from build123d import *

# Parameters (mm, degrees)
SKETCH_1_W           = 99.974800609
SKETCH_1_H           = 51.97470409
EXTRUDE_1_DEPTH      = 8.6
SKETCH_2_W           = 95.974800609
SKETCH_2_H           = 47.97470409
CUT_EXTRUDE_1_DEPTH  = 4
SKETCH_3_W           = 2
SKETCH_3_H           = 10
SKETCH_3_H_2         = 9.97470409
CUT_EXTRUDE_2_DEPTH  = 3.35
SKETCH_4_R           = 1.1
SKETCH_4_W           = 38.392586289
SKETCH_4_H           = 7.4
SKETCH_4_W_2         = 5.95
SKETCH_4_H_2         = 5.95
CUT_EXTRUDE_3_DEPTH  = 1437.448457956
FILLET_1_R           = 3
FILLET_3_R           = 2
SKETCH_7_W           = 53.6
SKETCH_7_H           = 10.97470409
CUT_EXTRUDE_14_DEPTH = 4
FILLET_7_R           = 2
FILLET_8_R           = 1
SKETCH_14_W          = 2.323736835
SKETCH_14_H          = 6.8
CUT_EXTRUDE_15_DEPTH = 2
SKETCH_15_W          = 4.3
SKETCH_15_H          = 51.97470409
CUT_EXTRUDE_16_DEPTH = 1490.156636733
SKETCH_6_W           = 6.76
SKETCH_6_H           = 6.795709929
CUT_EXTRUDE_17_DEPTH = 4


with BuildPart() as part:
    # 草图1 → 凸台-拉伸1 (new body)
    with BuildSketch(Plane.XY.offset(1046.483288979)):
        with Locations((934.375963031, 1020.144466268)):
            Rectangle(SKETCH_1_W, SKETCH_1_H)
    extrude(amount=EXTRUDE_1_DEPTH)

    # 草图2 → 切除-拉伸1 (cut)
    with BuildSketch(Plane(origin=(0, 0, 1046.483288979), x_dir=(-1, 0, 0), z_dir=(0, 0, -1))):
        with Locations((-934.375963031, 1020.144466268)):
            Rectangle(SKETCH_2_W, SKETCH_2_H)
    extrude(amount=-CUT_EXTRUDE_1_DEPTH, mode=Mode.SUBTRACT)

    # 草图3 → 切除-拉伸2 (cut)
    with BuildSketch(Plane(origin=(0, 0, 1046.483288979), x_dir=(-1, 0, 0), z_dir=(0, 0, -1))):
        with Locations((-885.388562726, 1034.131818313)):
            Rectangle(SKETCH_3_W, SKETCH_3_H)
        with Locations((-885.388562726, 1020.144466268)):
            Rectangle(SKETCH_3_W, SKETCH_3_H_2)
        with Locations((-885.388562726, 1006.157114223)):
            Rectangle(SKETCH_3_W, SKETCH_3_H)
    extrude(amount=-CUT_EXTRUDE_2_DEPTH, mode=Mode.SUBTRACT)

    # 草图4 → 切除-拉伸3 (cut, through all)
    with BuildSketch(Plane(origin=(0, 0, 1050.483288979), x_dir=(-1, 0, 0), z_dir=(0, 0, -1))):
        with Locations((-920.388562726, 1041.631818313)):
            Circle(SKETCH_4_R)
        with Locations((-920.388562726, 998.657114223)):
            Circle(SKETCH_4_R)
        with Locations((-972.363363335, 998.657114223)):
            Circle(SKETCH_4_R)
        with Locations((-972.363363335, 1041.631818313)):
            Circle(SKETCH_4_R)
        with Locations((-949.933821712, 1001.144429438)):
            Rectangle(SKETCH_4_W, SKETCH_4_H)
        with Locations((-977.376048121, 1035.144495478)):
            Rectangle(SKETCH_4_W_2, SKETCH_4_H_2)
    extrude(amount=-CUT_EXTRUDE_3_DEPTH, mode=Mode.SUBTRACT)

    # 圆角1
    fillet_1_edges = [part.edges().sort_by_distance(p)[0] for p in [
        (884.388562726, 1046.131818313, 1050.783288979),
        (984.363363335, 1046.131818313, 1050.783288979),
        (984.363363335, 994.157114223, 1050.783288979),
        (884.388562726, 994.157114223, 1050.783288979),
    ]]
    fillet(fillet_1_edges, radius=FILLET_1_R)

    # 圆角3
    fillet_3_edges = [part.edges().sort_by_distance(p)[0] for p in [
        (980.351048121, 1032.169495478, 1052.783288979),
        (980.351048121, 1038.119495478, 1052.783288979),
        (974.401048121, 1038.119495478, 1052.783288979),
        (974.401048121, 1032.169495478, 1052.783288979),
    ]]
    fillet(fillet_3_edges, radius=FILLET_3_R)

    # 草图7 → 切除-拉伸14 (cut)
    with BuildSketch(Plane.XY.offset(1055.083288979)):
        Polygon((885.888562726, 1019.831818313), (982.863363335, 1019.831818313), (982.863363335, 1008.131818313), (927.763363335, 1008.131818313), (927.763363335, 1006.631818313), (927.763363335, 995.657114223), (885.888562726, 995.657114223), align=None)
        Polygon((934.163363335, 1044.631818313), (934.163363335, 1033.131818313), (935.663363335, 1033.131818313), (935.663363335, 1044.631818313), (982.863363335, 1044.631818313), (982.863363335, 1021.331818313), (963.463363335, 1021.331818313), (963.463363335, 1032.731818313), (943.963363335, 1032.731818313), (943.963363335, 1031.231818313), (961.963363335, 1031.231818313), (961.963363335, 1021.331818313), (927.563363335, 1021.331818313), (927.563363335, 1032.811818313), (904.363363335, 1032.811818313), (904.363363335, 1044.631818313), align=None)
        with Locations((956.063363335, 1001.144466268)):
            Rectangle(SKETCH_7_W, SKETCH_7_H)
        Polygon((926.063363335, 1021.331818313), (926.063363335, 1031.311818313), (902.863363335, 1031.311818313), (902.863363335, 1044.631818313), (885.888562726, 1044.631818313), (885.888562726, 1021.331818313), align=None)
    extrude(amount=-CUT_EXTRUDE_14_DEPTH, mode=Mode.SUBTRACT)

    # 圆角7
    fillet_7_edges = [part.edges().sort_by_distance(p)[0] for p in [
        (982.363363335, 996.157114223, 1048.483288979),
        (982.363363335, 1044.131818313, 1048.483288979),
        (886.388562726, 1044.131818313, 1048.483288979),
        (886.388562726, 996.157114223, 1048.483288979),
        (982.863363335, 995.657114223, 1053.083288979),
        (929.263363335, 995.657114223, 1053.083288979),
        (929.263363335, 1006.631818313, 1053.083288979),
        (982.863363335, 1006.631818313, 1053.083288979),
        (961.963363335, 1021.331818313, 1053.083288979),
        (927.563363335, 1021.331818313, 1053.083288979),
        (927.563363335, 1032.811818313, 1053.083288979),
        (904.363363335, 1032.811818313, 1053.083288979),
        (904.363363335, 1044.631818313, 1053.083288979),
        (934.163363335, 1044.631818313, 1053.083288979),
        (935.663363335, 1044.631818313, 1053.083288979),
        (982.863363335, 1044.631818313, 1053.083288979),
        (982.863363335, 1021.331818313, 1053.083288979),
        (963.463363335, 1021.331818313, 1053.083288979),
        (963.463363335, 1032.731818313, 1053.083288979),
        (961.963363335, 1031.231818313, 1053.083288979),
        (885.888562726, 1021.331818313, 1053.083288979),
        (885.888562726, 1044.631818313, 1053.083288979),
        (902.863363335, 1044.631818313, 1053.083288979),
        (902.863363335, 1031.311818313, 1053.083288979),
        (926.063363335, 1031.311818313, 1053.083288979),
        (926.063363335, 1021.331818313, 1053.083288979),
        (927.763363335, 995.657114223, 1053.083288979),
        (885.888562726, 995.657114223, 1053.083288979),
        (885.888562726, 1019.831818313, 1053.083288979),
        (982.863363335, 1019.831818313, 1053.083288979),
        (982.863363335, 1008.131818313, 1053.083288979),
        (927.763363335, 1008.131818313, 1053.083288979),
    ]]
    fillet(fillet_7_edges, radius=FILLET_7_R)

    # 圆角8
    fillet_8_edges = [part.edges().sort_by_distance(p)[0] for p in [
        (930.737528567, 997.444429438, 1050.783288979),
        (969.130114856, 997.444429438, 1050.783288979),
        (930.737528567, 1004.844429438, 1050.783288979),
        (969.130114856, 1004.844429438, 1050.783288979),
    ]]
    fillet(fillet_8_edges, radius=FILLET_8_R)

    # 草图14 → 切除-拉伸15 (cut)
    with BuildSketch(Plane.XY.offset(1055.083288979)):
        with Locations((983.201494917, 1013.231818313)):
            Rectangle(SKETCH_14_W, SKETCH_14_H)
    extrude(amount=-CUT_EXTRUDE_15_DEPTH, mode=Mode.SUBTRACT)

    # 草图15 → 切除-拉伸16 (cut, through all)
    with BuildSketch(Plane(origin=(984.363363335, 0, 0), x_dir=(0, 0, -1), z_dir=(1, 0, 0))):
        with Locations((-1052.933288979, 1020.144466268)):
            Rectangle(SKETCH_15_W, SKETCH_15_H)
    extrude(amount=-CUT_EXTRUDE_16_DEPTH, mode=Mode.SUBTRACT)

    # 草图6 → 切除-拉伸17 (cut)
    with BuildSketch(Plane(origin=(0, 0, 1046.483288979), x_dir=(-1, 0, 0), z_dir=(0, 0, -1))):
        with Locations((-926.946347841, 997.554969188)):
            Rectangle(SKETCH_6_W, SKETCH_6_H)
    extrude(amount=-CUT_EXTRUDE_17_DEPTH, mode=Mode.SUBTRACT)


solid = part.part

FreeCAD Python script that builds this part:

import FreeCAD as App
import Part
import Sketcher
from FreeCAD import Vector
Q = App.Units.Quantity


def edges_at(feature, points):
    """Names of the edges that pass closest to the given points."""
    edges = feature.Shape.Edges
    near = lambda p: min(range(len(edges)), key=lambda i: edges[i].distToShape(Part.Vertex(*p))[0])
    return sorted({f"Edge{near(p) + 1}" for p in points})

doc = App.newDocument("Part")
body = doc.addObject("PartDesign::Body", "Body")

sketch1 = body.newObject("Sketcher::SketchObject", "Sketch")
sketch1.AttachmentSupport = (doc.getObject("XY_Plane"), [""])
sketch1.MapMode = "FlatFace"
sketch1.AttachmentOffset = App.Placement(Vector(0, 0, 1046.483289), App.Rotation())
sketch1.addGeometry(Part.LineSegment(Vector(884, 1046, 0), Vector(884, 994, 0)), False)
sketch1.addGeometry(Part.LineSegment(Vector(884, 994, 0), Vector(984, 994, 0)), False)
sketch1.addGeometry(Part.LineSegment(Vector(984, 994, 0), Vector(984, 1046, 0)), False)
sketch1.addGeometry(Part.LineSegment(Vector(984, 1046, 0), Vector(884, 1046, 0)), False)
sketch1.addConstraint(Sketcher.Constraint("Coincident", 0, 2, 1, 1))
sketch1.addConstraint(Sketcher.Constraint("Coincident", 1, 2, 2, 1))
sketch1.addConstraint(Sketcher.Constraint("Coincident", 2, 2, 3, 1))
sketch1.addConstraint(Sketcher.Constraint("Coincident", 3, 2, 0, 1))
sketch1.addConstraint(Sketcher.Constraint("Vertical", 0))
sketch1.addConstraint(Sketcher.Constraint("Horizontal", 1))
sketch1.addConstraint(Sketcher.Constraint("Vertical", 2))
sketch1.addConstraint(Sketcher.Constraint("Horizontal", 3))
sketch1.addConstraint(Sketcher.Constraint("DistanceX", 1, 1, 1, 2, Q("99.974801 mm")))
sketch1.addConstraint(Sketcher.Constraint("DistanceY", 0, 2, 0, 1, Q("51.974704 mm")))
sketch1.addConstraint(Sketcher.Constraint("DistanceY", -1, 1, 2, 2, Q("1046.131818 mm")))
sketch1.addConstraint(Sketcher.Constraint("DistanceX", -1, 1, 0, 2, Q("884.388563 mm")))
pad1 = body.newObject("PartDesign::Pad", "Pad")
pad1.Profile = sketch1
pad1.Length = 8.6

sketch2 = body.newObject("Sketcher::SketchObject", "Sketch001")
sketch2.AttachmentSupport = (doc.getObject("XY_Plane"), [""])
sketch2.MapMode = "FlatFace"
sketch2.AttachmentOffset = App.Placement(Vector(0, 0, 1046.483289), App.Rotation())
sketch2.addGeometry(Part.LineSegment(Vector(982, 1044, 0), Vector(982, 996, 0)), False)
sketch2.addGeometry(Part.LineSegment(Vector(982, 996, 0), Vector(886, 996, 0)), False)
sketch2.addGeometry(Part.LineSegment(Vector(886, 996, 0), Vector(886, 1044, 0)), False)
sketch2.addGeometry(Part.LineSegment(Vector(886, 1044, 0), Vector(982, 1044, 0)), False)
sketch2.addConstraint(Sketcher.Constraint("Coincident", 0, 2, 1, 1))
sketch2.addConstraint(Sketcher.Constraint("Coincident", 1, 2, 2, 1))
sketch2.addConstraint(Sketcher.Constraint("Coincident", 2, 2, 3, 1))
sketch2.addConstraint(Sketcher.Constraint("Coincident", 3, 2, 0, 1))
sketch2.addConstraint(Sketcher.Constraint("Vertical", 0))
sketch2.addConstraint(Sketcher.Constraint("Horizontal", 1))
sketch2.addConstraint(Sketcher.Constraint("Vertical", 2))
sketch2.addConstraint(Sketcher.Constraint("Horizontal", 3))
sketch2.addConstraint(Sketcher.Constraint("DistanceX", 1, 2, 1, 1, Q("95.974801 mm")))
sketch2.addConstraint(Sketcher.Constraint("DistanceY", 0, 2, 0, 1, Q("47.974704 mm")))
sketch2.addConstraint(Sketcher.Constraint("DistanceY", -1, 1, 2, 2, Q("1044.131818 mm")))
sketch2.addConstraint(Sketcher.Constraint("DistanceX", -1, 1, 0, 2, Q("982.363363 mm")))
pocket1 = body.newObject("PartDesign::Pocket", "Pocket")
pocket1.Profile = sketch2
pocket1.Length = 4
pocket1.Reversed = True

sketch3 = body.newObject("Sketcher::SketchObject", "Sketch002")
sketch3.AttachmentSupport = (doc.getObject("XY_Plane"), [""])
sketch3.MapMode = "FlatFace"
sketch3.AttachmentOffset = App.Placement(Vector(0, 0, 1046.483289), App.Rotation())
sketch3.addGeometry(Part.LineSegment(Vector(886.4, 1039.1, 0), Vector(886.4, 1029.1, 0)), False)
sketch3.addGeometry(Part.LineSegment(Vector(886.4, 1029.1, 0), Vector(884.4, 1029.1, 0)), False)
sketch3.addGeometry(Part.LineSegment(Vector(884.4, 1029.1, 0), Vector(884.4, 1039.1, 0)), False)
sketch3.addGeometry(Part.LineSegment(Vector(884.4, 1039.1, 0), Vector(886.4, 1039.1, 0)), False)
sketch3.addGeometry(Part.LineSegment(Vector(886.4, 1025.1, 0), Vector(886.4, 1015.2, 0)), False)
sketch3.addGeometry(Part.LineSegment(Vector(886.4, 1015.2, 0), Vector(884.4, 1015.2, 0)), False)
sketch3.addGeometry(Part.LineSegment(Vector(884.4, 1015.2, 0), Vector(884.4, 1025.1, 0)), False)
sketch3.addGeometry(Part.LineSegment(Vector(884.4, 1025.1, 0), Vector(886.4, 1025.1, 0)), False)
sketch3.addGeometry(Part.LineSegment(Vector(886.4, 1011.2, 0), Vector(886.4, 1001.2, 0)), False)
sketch3.addGeometry(Part.LineSegment(Vector(886.4, 1001.2, 0), Vector(884.4, 1001.2, 0)), False)
sketch3.addGeometry(Part.LineSegment(Vector(884.4, 1001.2, 0), Vector(884.4, 1011.2, 0)), False)
sketch3.addGeometry(Part.LineSegment(Vector(884.4, 1011.2, 0), Vector(886.4, 1011.2, 0)), False)
sketch3.addConstraint(Sketcher.Constraint("Coincident", 0, 2, 1, 1))
sketch3.addConstraint(Sketcher.Constraint("Coincident", 1, 2, 2, 1))
sketch3.addConstraint(Sketcher.Constraint("Coincident", 2, 2, 3, 1))
sketch3.addConstraint(Sketcher.Constraint("Coincident", 3, 2, 0, 1))
sketch3.addConstraint(Sketcher.Constraint("Coincident", 4, 2, 5, 1))
sketch3.addConstraint(Sketcher.Constraint("Coincident", 5, 2, 6, 1))
sketch3.addConstraint(Sketcher.Constraint("Coincident", 6, 2, 7, 1))
sketch3.addConstraint(Sketcher.Constraint("Coincident", 7, 2, 4, 1))
sketch3.addConstraint(Sketcher.Constraint("Coincident", 8, 2, 9, 1))
sketch3.addConstraint(Sketcher.Constraint("Coincident", 9, 2, 10, 1))
sketch3.addConstraint(Sketcher.Constraint("Coincident", 10, 2, 11, 1))
sketch3.addConstraint(Sketcher.Constraint("Coincident", 11, 2, 8, 1))
sketch3.addConstraint(Sketcher.Constraint("Vertical", 0))
sketch3.addConstraint(Sketcher.Constraint("Horizontal", 1))
sketch3.addConstraint(Sketcher.Constraint("Vertical", 2))
sketch3.addConstraint(Sketcher.Constraint("Horizontal", 3))
sketch3.addConstraint(Sketcher.Constraint("Vertical", 4))
sketch3.addConstraint(Sketcher.Constraint("Horizontal", 5))
sketch3.addConstraint(Sketcher.Constraint("Vertical", 6))
sketch3.addConstraint(Sketcher.Constraint("Horizontal", 7))
sketch3.addConstraint(Sketcher.Constraint("Vertical", 8))
sketch3.addConstraint(Sketcher.Constraint("Horizontal", 9))
sketch3.addConstraint(Sketcher.Constraint("Vertical", 10))
sketch3.addConstraint(Sketcher.Constraint("Horizontal", 11))
sketch3.addConstraint(Sketcher.Constraint("Vertical", 3, 2, 4, 2))
sketch3.addConstraint(Sketcher.Constraint("Vertical", 2, 2, 5, 2))
sketch3.addConstraint(Sketcher.Constraint("Vertical", 7, 2, 8, 2))
sketch3.addConstraint(Sketcher.Constraint("Vertical", 6, 2, 9, 2))
sketch3.addConstraint(Sketcher.Constraint("Equal", 2, 8))
sketch3.addConstraint(Sketcher.Constraint("DistanceX", 1, 2, 1, 1, Q("2 mm")))
sketch3.addConstraint(Sketcher.Constraint("DistanceY", 0, 2, 0, 1, Q("10 mm")))
sketch3.addConstraint(Sketcher.Constraint("DistanceY", 6, 2, 1, 2, Q("4 mm")))
sketch3.addConstraint(Sketcher.Constraint("DistanceY", 8, 2, 4, 2, Q("14 mm")))
sketch3.addConstraint(Sketcher.Constraint("DistanceY", 4, 2, 4, 1, Q("9.974704 mm")))
sketch3.addConstraint(Sketcher.Constraint("DistanceY", -1, 1, 0, 2, Q("1029.131818 mm")))
sketch3.addConstraint(Sketcher.Constraint("DistanceX", -1, 1, 0, 2, Q("886.388563 mm")))
pocket2 = body.newObject("PartDesign::Pocket", "Pocket001")
pocket2.Profile = sketch3
pocket2.Length = 3.35
pocket2.Reversed = True

sketch4 = body.newObject("Sketcher::SketchObject", "Sketch003")
sketch4.AttachmentSupport = (doc.getObject("XY_Plane"), [""])
sketch4.MapMode = "FlatFace"
sketch4.AttachmentOffset = App.Placement(Vector(0, 0, 1050.483289), App.Rotation())
sketch4.addGeometry(Part.Circle(Vector(920.4, 1041.6, 0), Vector(0, 0, 1), 1.1), False)
sketch4.addGeometry(Part.Circle(Vector(920.4, 998.7, 0), Vector(0, 0, 1), 1.1), False)
sketch4.addGeometry(Part.Circle(Vector(972.4, 998.7, 0), Vector(0, 0, 1), 1.1), False)
sketch4.addGeometry(Part.Circle(Vector(972.4, 1041.6, 0), Vector(0, 0, 1), 1.1), False)
sketch4.addGeometry(Part.LineSegment(Vector(969.1, 1004.8, 0), Vector(969.1, 997.4, 0)), False)
sketch4.addGeometry(Part.LineSegment(Vector(969.1, 997.4, 0), Vector(930.7, 997.4, 0)), False)
sketch4.addGeometry(Part.LineSegment(Vector(930.7, 997.4, 0), Vector(930.7, 1004.8, 0)), False)
sketch4.addGeometry(Part.LineSegment(Vector(930.7, 1004.8, 0), Vector(969.1, 1004.8, 0)), False)
sketch4.addGeometry(Part.LineSegment(Vector(980.4, 1038.1, 0), Vector(980.4, 1032.2, 0)), False)
sketch4.addGeometry(Part.LineSegment(Vector(980.4, 1032.2, 0), Vector(974.4, 1032.2, 0)), False)
sketch4.addGeometry(Part.LineSegment(Vector(974.4, 1032.2, 0), Vector(974.4, 1038.1, 0)), False)
sketch4.addGeometry(Part.LineSegment(Vector(974.4, 1038.1, 0), Vector(980.4, 1038.1, 0)), False)
sketch4.addConstraint(Sketcher.Constraint("Coincident", 4, 2, 5, 1))
sketch4.addConstraint(Sketcher.Constraint("Coincident", 5, 2, 6, 1))
sketch4.addConstraint(Sketcher.Constraint("Coincident", 6, 2, 7, 1))
sketch4.addConstraint(Sketcher.Constraint("Coincident", 7, 2, 4, 1))
sketch4.addConstraint(Sketcher.Constraint("Coincident", 8, 2, 9, 1))
sketch4.addConstraint(Sketcher.Constraint("Coincident", 9, 2, 10, 1))
sketch4.addConstraint(Sketcher.Constraint("Coincident", 10, 2, 11, 1))
sketch4.addConstraint(Sketcher.Constraint("Coincident", 11, 2, 8, 1))
sketch4.addConstraint(Sketcher.Constraint("Vertical", 4))
sketch4.addConstraint(Sketcher.Constraint("Horizontal", 5))
sketch4.addConstraint(Sketcher.Constraint("Vertical", 6))
sketch4.addConstraint(Sketcher.Constraint("Horizontal", 7))
sketch4.addConstraint(Sketcher.Constraint("Vertical", 8))
sketch4.addConstraint(Sketcher.Constraint("Horizontal", 9))
sketch4.addConstraint(Sketcher.Constraint("Vertical", 10))
sketch4.addConstraint(Sketcher.Constraint("Horizontal", 11))
sketch4.addConstraint(Sketcher.Constraint("Equal", 0, 1))
sketch4.addConstraint(Sketcher.Constraint("Equal", 1, 2))
sketch4.addConstraint(Sketcher.Constraint("Equal", 2, 3))
sketch4.addConstraint(Sketcher.Constraint("Horizontal", 1, 3, 2, 3))
sketch4.addConstraint(Sketcher.Constraint("Horizontal", 0, 3, 3, 3))
sketch4.addConstraint(Sketcher.Constraint("Vertical", 0, 3, 1, 3))
sketch4.addConstraint(Sketcher.Constraint("Vertical", 2, 3, 3, 3))
sketch4.addConstraint(Sketcher.Constraint("Equal", 11, 8))
sketch4.addConstraint(Sketcher.Constraint("Diameter", 0, Q("2.2 mm")))
sketch4.addConstraint(Sketcher.Constraint("DistanceY", 4, 2, 4, 1, Q("7.4 mm")))
sketch4.addConstraint(Sketcher.Constraint("DistanceX", 9, 2, 9, 1, Q("5.95 mm")))
sketch4.addConstraint(Sketcher.Constraint("DistanceX", 1, 3, 2, 3, Q("51.974801 mm")))
sketch4.addConstraint(Sketcher.Constraint("DistanceX", 5, 2, 5, 1, Q("38.392586 mm")))
sketch4.addConstraint(Sketcher.Constraint("DistanceY", -1, 1, 0, 3, Q("1041.631818 mm")))
sketch4.addConstraint(Sketcher.Constraint("DistanceY", -1, 1, 4, 2, Q("997.444429 mm")))
sketch4.addConstraint(Sketcher.Constraint("DistanceX", -1, 1, 5, 2, Q("930.737529 mm")))
sketch4.addConstraint(Sketcher.Constraint("DistanceX", -1, 1, 8, 2, Q("980.351048 mm")))
sketch4.addConstraint(Sketcher.Constraint("DistanceX", 4, 2, 2, 3, Q("3.233248 mm")))
sketch4.addConstraint(Sketcher.Constraint("DistanceY", 2, 3, 8, 2, Q("33.512381 mm")))
sketch4.addConstraint(Sketcher.Constraint("DistanceY", -1, 1, 1, 3, Q("998.657114 mm")))
pocket3 = body.newObject("PartDesign::Pocket", "Pocket002")
pocket3.Profile = sketch4
pocket3.Type = "ThroughAll"
pocket3.Reversed = True
doc.recompute()

fillet = body.newObject("PartDesign::Fillet", "Fillet")
fillet.Base = (pocket3, edges_at(pocket3, [
    (884.389, 1046.132, 1050.783),
    (984.363, 1046.132, 1050.783),
    (984.363, 994.157, 1050.783),
    (884.389, 994.157, 1050.783),
]))
fillet.Radius = 3
doc.recompute()

fillet2 = body.newObject("PartDesign::Fillet", "Fillet001")
fillet2.Base = (fillet, edges_at(fillet, [
    (980.351, 1032.169, 1052.783),
    (980.351, 1038.119, 1052.783),
    (974.401, 1038.119, 1052.783),
    (974.401, 1032.169, 1052.783),
]))
fillet2.Radius = 2

sketch5 = body.newObject("Sketcher::SketchObject", "Sketch004")
sketch5.AttachmentSupport = (doc.getObject("XY_Plane"), [""])
sketch5.MapMode = "FlatFace"
sketch5.AttachmentOffset = App.Placement(Vector(0, 0, 1055.083289), App.Rotation())
sketch5.addGeometry(Part.LineSegment(Vector(982.9, 1019.8, 0), Vector(885.9, 1019.8, 0)), False)
sketch5.addGeometry(Part.LineSegment(Vector(885.9, 1019.8, 0), Vector(885.9, 995.7, 0)), False)
sketch5.addGeometry(Part.LineSegment(Vector(885.9, 995.7, 0), Vector(927.8, 995.7, 0)), False)
sketch5.addGeometry(Part.LineSegment(Vector(927.8, 995.7, 0), Vector(927.8, 1008.1, 0)), False)
sketch5.addGeometry(Part.LineSegment(Vector(927.8, 1008.1, 0), Vector(982.9, 1008.1, 0)), False)
sketch5.addGeometry(Part.LineSegment(Vector(982.9, 1008.1, 0), Vector(982.9, 1019.8, 0)), False)
sketch5.addGeometry(Part.LineSegment(Vector(934.2, 1033.1, 0), Vector(934.2, 1044.6, 0)), False)
sketch5.addGeometry(Part.LineSegment(Vector(934.2, 1044.6, 0), Vector(904.4, 1044.6, 0)), False)
sketch5.addGeometry(Part.LineSegment(Vector(904.4, 1044.6, 0), Vector(904.4, 1032.8, 0)), False)
sketch5.addGeometry(Part.LineSegment(Vector(904.4, 1032.8, 0), Vector(927.6, 1032.8, 0)), False)
sketch5.addGeometry(Part.LineSegment(Vector(927.6, 1032.8, 0), Vector(927.6, 1021.3, 0)), False)
sketch5.addGeometry(Part.LineSegment(Vector(927.6, 1021.3, 0), Vector(962, 1021.3, 0)), False)
sketch5.addGeometry(Part.LineSegment(Vector(962, 1021.3, 0), Vector(962, 1031.2, 0)), False)
sketch5.addGeometry(Part.LineSegment(Vector(962, 1031.2, 0), Vector(944, 1031.2, 0)), False)
sketch5.addGeometry(Part.LineSegment(Vector(944, 1031.2, 0), Vector(944, 1032.7, 0)), False)
sketch5.addGeometry(Part.LineSegment(Vector(944, 1032.7, 0), Vector(963.5, 1032.7, 0)), False)
sketch5.addGeometry(Part.LineSegment(Vector(963.5, 1032.7, 0), Vector(963.5, 1021.3, 0)), False)
sketch5.addGeometry(Part.LineSegment(Vector(963.5, 1021.3, 0), Vector(982.9, 1021.3, 0)), False)
sketch5.addGeometry(Part.LineSegment(Vector(982.9, 1021.3, 0), Vector(982.9, 1044.6, 0)), False)
sketch5.addGeometry(Part.LineSegment(Vector(982.9, 1044.6, 0), Vector(935.7, 1044.6, 0)), False)
sketch5.addGeometry(Part.LineSegment(Vector(935.7, 1044.6, 0), Vector(935.7, 1033.1, 0)), False)
sketch5.addGeometry(Part.LineSegment(Vector(935.7, 1033.1, 0), Vector(934.2, 1033.1, 0)), False)
sketch5.addGeometry(Part.LineSegment(Vector(929.3, 1006.6, 0), Vector(929.3, 995.7, 0)), False)
sketch5.addGeometry(Part.LineSegment(Vector(929.3, 995.7, 0), Vector(982.9, 995.7, 0)), False)
sketch5.addGeometry(Part.LineSegment(Vector(982.9, 995.7, 0), Vector(982.9, 1006.6, 0)), False)
sketch5.addGeometry(Part.LineSegment(Vector(982.9, 1006.6, 0), Vector(929.3, 1006.6, 0)), False)
sketch5.addGeometry(Part.LineSegment(Vector(926.1, 1021.3, 0), Vector(926.1, 1031.3, 0)), False)
sketch5.addGeometry(Part.LineSegment(Vector(926.1, 1031.3, 0), Vector(902.9, 1031.3, 0)), False)
sketch5.addGeometry(Part.LineSegment(Vector(902.9, 1031.3, 0), Vector(902.9, 1044.6, 0)), False)
sketch5.addGeometry(Part.LineSegment(Vector(902.9, 1044.6, 0), Vector(885.9, 1044.6, 0)), False)
sketch5.addGeometry(Part.LineSegment(Vector(885.9, 1044.6, 0), Vector(885.9, 1021.3, 0)), False)
sketch5.addGeometry(Part.LineSegment(Vector(885.9, 1021.3, 0), Vector(926.1, 1021.3, 0)), False)
sketch5.addConstraint(Sketcher.Constraint("Coincident", 0, 2, 1, 1))
sketch5.addConstraint(Sketcher.Constraint("Coincident", 1, 2, 2, 1))
sketch5.addConstraint(Sketcher.Constraint("Coincident", 2, 2, 3, 1))
sketch5.addConstraint(Sketcher.Constraint("Coincident", 3, 2, 4, 1))
sketch5.addConstraint(Sketcher.Constraint("Coincident", 4, 2, 5, 1))
sketch5.addConstraint(Sketcher.Constraint("Coincident", 5, 2, 0, 1))
sketch5.addConstraint(Sketcher.Constraint("Coincident", 6, 2, 7, 1))
sketch5.addConstraint(Sketcher.Constraint("Coincident", 7, 2, 8, 1))
sketch5.addConstraint(Sketcher.Constraint("Coincident", 8, 2, 9, 1))
sketch5.addConstraint(Sketcher.Constraint("Coincident", 9, 2, 10, 1))
sketch5.addConstraint(Sketcher.Constraint("Coincident", 10, 2, 11, 1))
sketch5.addConstraint(Sketcher.Constraint("Coincident", 11, 2, 12, 1))
sketch5.addConstraint(Sketcher.Constraint("Coincident", 12, 2, 13, 1))
sketch5.addConstraint(Sketcher.Constraint("Coincident", 13, 2, 14, 1))
sketch5.addConstraint(Sketcher.Constraint("Coincident", 14, 2, 15, 1))
sketch5.addConstraint(Sketcher.Constraint("Coincident", 15, 2, 16, 1))
sketch5.addConstraint(Sketcher.Constraint("Coincident", 16, 2, 17, 1))
sketch5.addConstraint(Sketcher.Constraint("Coincident", 17, 2, 18, 1))
sketch5.addConstraint(Sketcher.Constraint("Coincident", 18, 2, 19, 1))
sketch5.addConstraint(Sketcher.Constraint("Coincident", 19, 2, 20, 1))
sketch5.addConstraint(Sketcher.Constraint("Coincident", 20, 2, 21, 1))
sketch5.addConstraint(Sketcher.Constraint("Coincident", 21, 2, 6, 1))
sketch5.addConstraint(Sketcher.Constraint("Coincident", 22, 2, 23, 1))
sketch5.addConstraint(Sketcher.Constraint("Coincident", 23, 2, 24, 1))
sketch5.addConstraint(Sketcher.Constraint("Coincident", 24, 2, 25, 1))
sketch5.addConstraint(Sketcher.Constraint("Coincident", 25, 2, 22, 1))
sketch5.addConstraint(Sketcher.Constraint("Coincident", 26, 2, 27, 1))
sketch5.addConstraint(Sketcher.Constraint("Coincident", 27, 2, 28, 1))
sketch5.addConstraint(Sketcher.Constraint("Coincident", 28, 2, 29, 1))
sketch5.addConstraint(Sketcher.Constraint("Coincident", 29, 2, 30, 1))
sketch5.addConstraint(Sketcher.Constraint("Coincident", 30, 2, 31, 1))
sketch5.addConstraint(Sketcher.Constraint("Coincident", 31, 2, 26, 1))
sketch5.addConstraint(Sketcher.Constraint("Horizontal", 0))
sketch5.addConstraint(Sketcher.Constraint("Vertical", 1))
sketch5.addConstraint(Sketcher.Constraint("Horizontal", 2))
sketch5.addConstraint(Sketcher.Constraint("Vertical", 3))
sketch5.addConstraint(Sketcher.Constraint("Horizontal", 4))
sketch5.addConstraint(Sketcher.Constraint("Vertical", 5))
sketch5.addConstraint(Sketcher.Constraint("Vertical", 6))
sketch5.addConstraint(Sketcher.Constraint("Horizontal", 7))
sketch5.addConstraint(Sketcher.Constraint("Vertical", 8))
sketch5.addConstraint(Sketcher.Constraint("Horizontal", 9))
sketch5.addConstraint(Sketcher.Constraint("Vertical", 10))
sketch5.addConstraint(Sketcher.Constraint("Horizontal", 11))
sketch5.addConstraint(Sketcher.Constraint("Vertical", 12))
sketch5.addConstraint(Sketcher.Constraint("Horizontal", 13))
sketch5.addConstraint(Sketcher.Constraint("Vertical", 14))
sketch5.addConstraint(Sketcher.Constraint("Horizontal", 15))
sketch5.addConstraint(Sketcher.Constraint("Vertical", 16))
sketch5.addConstraint(Sketcher.Constraint("Horizontal", 17))
sketch5.addConstraint(Sketcher.Constraint("Vertical", 18))
sketch5.addConstraint(Sketcher.Constraint("Horizontal", 19))
sketch5.addConstraint(Sketcher.Constraint("Vertical", 20))
sketch5.addConstraint(Sketcher.Constraint("Horizontal", 21))
sketch5.addConstraint(Sketcher.Constraint("Vertical", 22))
sketch5.addConstraint(Sketcher.Constraint("Horizontal", 23))
sketch5.addConstraint(Sketcher.Constraint("Vertical", 24))
sketch5.addConstraint(Sketcher.Constraint("Horizontal", 25))
sketch5.addConstraint(Sketcher.Constraint("Vertical", 26))
sketch5.addConstraint(Sketcher.Constraint("Horizontal", 27))
sketch5.addConstraint(Sketcher.Constraint("Vertical", 28))
sketch5.addConstraint(Sketcher.Constraint("Horizontal", 29))
sketch5.addConstraint(Sketcher.Constraint("Vertical", 30))
sketch5.addConstraint(Sketcher.Constraint("Horizontal", 31))
sketch5.addConstraint(Sketcher.Constraint("Horizontal", 11, 2, 16, 2))
sketch5.addConstraint(Sketcher.Constraint("Horizontal", 7, 2, 18, 2))
sketch5.addConstraint(Sketcher.Constraint("Horizontal", 2, 2, 22, 2))
sketch5.addConstraint(Sketcher.Constraint("Horizontal", 19, 2, 28, 2))
sketch5.addConstraint(Sketcher.Constraint("Horizontal", 17, 2, 30, 2))
sketch5.addConstraint(Sketcher.Constraint("Vertical", 5, 2, 17, 2))
sketch5.addConstraint(Sketcher.Constraint("Vertical", 18, 2, 23, 2))
sketch5.addConstraint(Sketcher.Constraint("Vertical", 1, 2, 29, 2))
sketch5.addConstraint(Sketcher.Constraint("Equal", 9, 27))
sketch5.addConstraint(Sketcher.Constraint("Equal", 21, 14))
sketch5.addConstraint(Sketcher.Constraint("DistanceX", 13, 2, 13, 1, Q("18 mm")))
sketch5.addConstraint(Sketcher.Constraint("DistanceX", 4, 1, 4, 2, Q("55.1 mm")))
sketch5.addConstraint(Sketcher.Constraint("DistanceX", 7, 2, 7, 1, Q("29.8 mm")))
sketch5.addConstraint(Sketcher.Constraint("DistanceX", 9, 1, 9, 2, Q("23.2 mm")))
sketch5.addConstraint(Sketcher.Constraint("DistanceX", 11, 1, 11, 2, Q("34.4 mm")))
sketch5.addConstraint(Sketcher.Constraint("DistanceX", 15, 1, 15, 2, Q("19.5 mm")))
sketch5.addConstraint(Sketcher.Constraint("DistanceX", 17, 1, 17, 2, Q("19.4 mm")))
sketch5.addConstraint(Sketcher.Constraint("DistanceX", 19, 2, 19, 1, Q("47.2 mm")))
sketch5.addConstraint(Sketcher.Constraint("DistanceX", 23, 1, 23, 2, Q("53.6 mm")))
sketch5.addConstraint(Sketcher.Constraint("DistanceY", 5, 1, 5, 2, Q("11.7 mm")))
sketch5.addConstraint(Sketcher.Constraint("DistanceY", 6, 1, 6, 2, Q("11.5 mm")))
sketch5.addConstraint(Sketcher.Constraint("DistanceY", 12, 1, 12, 2, Q("9.9 mm")))
sketch5.addConstraint(Sketcher.Constraint("DistanceY", 18, 1, 18, 2, Q("23.3 mm")))
sketch5.addConstraint(Sketcher.Constraint("DistanceY", 8, 2, 8, 1, Q("11.82 mm")))
sketch5.addConstraint(Sketcher.Constraint("DistanceY", 26, 1, 26, 2, Q("9.98 mm")))
sketch5.addConstraint(Sketcher.Constraint("DistanceY", 3, 2, 6, 2, Q("36.5 mm")))
sketch5.addConstraint(Sketcher.Constraint("DistanceY", 24, 2, 4, 2, Q("1.5 mm")))
sketch5.addConstraint(Sketcher.Constraint("DistanceX", 26, 2, 9, 2, Q("1.5 mm")))
sketch5.addConstraint(Sketcher.Constraint("DistanceX", 0, 2, 0, 1, Q("96.974801 mm")))
sketch5.addConstraint(Sketcher.Constraint("DistanceY", 1, 2, 1, 1, Q("24.174704 mm")))
sketch5.addConstraint(Sketcher.Constraint("DistanceY", -1, 1, 0, 2, Q("1019.831818 mm")))
sketch5.addConstraint(Sketcher.Constraint("DistanceX", -1, 1, 0, 2, Q("885.888563 mm")))
pocket4 = body.newObject("PartDesign::Pocket", "Pocket003")
pocket4.Profile = sketch5
pocket4.Length = 4
doc.recompute()

fillet3 = body.newObject("PartDesign::Fillet", "Fillet002")
fillet3.Base = (pocket4, edges_at(pocket4, [
    (982.363, 996.157, 1048.483),
    (982.363, 1044.132, 1048.483),
    (886.389, 1044.132, 1048.483),
    (886.389, 996.157, 1048.483),
    (982.863, 995.657, 1053.083),
    (929.263, 995.657, 1053.083),
    (929.263, 1006.632, 1053.083),
    (982.863, 1006.632, 1053.083),
    (961.963, 1021.332, 1053.083),
    (927.563, 1021.332, 1053.083),
    (927.563, 1032.812, 1053.083),
    (904.363, 1032.812, 1053.083),
    (904.363, 1044.632, 1053.083),
    (934.163, 1044.632, 1053.083),
    (935.663, 1044.632, 1053.083),
    (982.863, 1044.632, 1053.083),
    (982.863, 1021.332, 1053.083),
    (963.463, 1021.332, 1053.083),
    (963.463, 1032.732, 1053.083),
    (961.963, 1031.232, 1053.083),
    (885.889, 1021.332, 1053.083),
    (885.889, 1044.632, 1053.083),
    (902.863, 1044.632, 1053.083),
    (902.863, 1031.312, 1053.083),
    (926.063, 1031.312, 1053.083),
    (926.063, 1021.332, 1053.083),
    (927.763, 995.657, 1053.083),
    (885.889, 995.657, 1053.083),
    (885.889, 1019.832, 1053.083),
    (982.863, 1019.832, 1053.083),
    (982.863, 1008.132, 1053.083),
    (927.763, 1008.132, 1053.083),
]))
fillet3.Radius = 2
doc.recompute()

fillet4 = body.newObject("PartDesign::Fillet", "Fillet003")
fillet4.Base = (fillet3, edges_at(fillet3, [
    (930.738, 997.444, 1050.783),
    (969.13, 997.444, 1050.783),
    (930.738, 1004.844, 1050.783),
    (969.13, 1004.844, 1050.783),
]))
fillet4.Radius = 1

sketch6 = body.newObject("Sketcher::SketchObject", "Sketch005")
sketch6.AttachmentSupport = (doc.getObject("XY_Plane"), [""])
sketch6.MapMode = "FlatFace"
sketch6.AttachmentOffset = App.Placement(Vector(0, 0, 1055.083289), App.Rotation())
sketch6.addGeometry(Part.LineSegment(Vector(982, 1016.6, 0), Vector(982, 1009.8, 0)), False)
sketch6.addGeometry(Part.LineSegment(Vector(982, 1009.8, 0), Vector(984.4, 1009.8, 0)), False)
sketch6.addGeometry(Part.LineSegment(Vector(984.4, 1009.8, 0), Vector(984.4, 1016.6, 0)), False)
sketch6.addGeometry(Part.LineSegment(Vector(984.4, 1016.6, 0), Vector(982, 1016.6, 0)), False)
sketch6.addConstraint(Sketcher.Constraint("Coincident", 0, 2, 1, 1))
sketch6.addConstraint(Sketcher.Constraint("Coincident", 1, 2, 2, 1))
sketch6.addConstraint(Sketcher.Constraint("Coincident", 2, 2, 3, 1))
sketch6.addConstraint(Sketcher.Constraint("Coincident", 3, 2, 0, 1))
sketch6.addConstraint(Sketcher.Constraint("Vertical", 0))
sketch6.addConstraint(Sketcher.Constraint("Horizontal", 1))
sketch6.addConstraint(Sketcher.Constraint("Vertical", 2))
sketch6.addConstraint(Sketcher.Constraint("Horizontal", 3))
sketch6.addConstraint(Sketcher.Constraint("DistanceY", 0, 2, 0, 1, Q("6.8 mm")))
sketch6.addConstraint(Sketcher.Constraint("DistanceX", 1, 1, 1, 2, Q("2.323737 mm")))
sketch6.addConstraint(Sketcher.Constraint("DistanceY", -1, 1, 0, 2, Q("1009.831818 mm")))
sketch6.addConstraint(Sketcher.Constraint("DistanceX", -1, 1, 0, 2, Q("982.039626 mm")))
pocket5 = body.newObject("PartDesign::Pocket", "Pocket004")
pocket5.Profile = sketch6
pocket5.Length = 2

sketch7 = body.newObject("Sketcher::SketchObject", "Sketch006")
sketch7.AttachmentSupport = (doc.getObject("YZ_Plane"), [""])
sketch7.MapMode = "FlatFace"
sketch7.AttachmentOffset = App.Placement(Vector(0, 0, 984.363363), App.Rotation())
sketch7.addGeometry(Part.LineSegment(Vector(1046.1, 1055.1, 0), Vector(994.2, 1055.1, 0)), False)
sketch7.addGeometry(Part.LineSegment(Vector(994.2, 1055.1, 0), Vector(994.2, 1050.8, 0)), False)
sketch7.addGeometry(Part.LineSegment(Vector(994.2, 1050.8, 0), Vector(1046.1, 1050.8, 0)), False)
sketch7.addGeometry(Part.LineSegment(Vector(1046.1, 1050.8, 0), Vector(1046.1, 1055.1, 0)), False)
sketch7.addConstraint(Sketcher.Constraint("Coincident", 0, 2, 1, 1))
sketch7.addConstraint(Sketcher.Constraint("Coincident", 1, 2, 2, 1))
sketch7.addConstraint(Sketcher.Constraint("Coincident", 2, 2, 3, 1))
sketch7.addConstraint(Sketcher.Constraint("Coincident", 3, 2, 0, 1))
sketch7.addConstraint(Sketcher.Constraint("Horizontal", 0))
sketch7.addConstraint(Sketcher.Constraint("Vertical", 1))
sketch7.addConstraint(Sketcher.Constraint("Horizontal", 2))
sketch7.addConstraint(Sketcher.Constraint("Vertical", 3))
sketch7.addConstraint(Sketcher.Constraint("DistanceY", 1, 2, 1, 1, Q("4.3 mm")))
sketch7.addConstraint(Sketcher.Constraint("DistanceX", 0, 2, 0, 1, Q("51.974704 mm")))
sketch7.addConstraint(Sketcher.Constraint("DistanceY", -1, 1, 0, 2, Q("1055.083289 mm")))
sketch7.addConstraint(Sketcher.Constraint("DistanceX", -1, 1, 2, 2, Q("1046.131818 mm")))
pocket6 = body.newObject("PartDesign::Pocket", "Pocket005")
pocket6.Profile = sketch7
pocket6.Type = "ThroughAll"

sketch8 = body.newObject("Sketcher::SketchObject", "Sketch007")
sketch8.AttachmentSupport = (doc.getObject("XY_Plane"), [""])
sketch8.MapMode = "FlatFace"
sketch8.AttachmentOffset = App.Placement(Vector(0, 0, 1046.483289), App.Rotation())
sketch8.addGeometry(Part.LineSegment(Vector(930, 1001, 0), Vector(930, 994, 0)), False)
sketch8.addGeometry(Part.LineSegment(Vector(930, 994, 0), Vector(924, 994, 0)), False)
sketch8.addGeometry(Part.LineSegment(Vector(924, 994, 0), Vector(924, 1001, 0)), False)
sketch8.addGeometry(Part.LineSegment(Vector(924, 1001, 0), Vector(930, 1001, 0)), False)
sketch8.addConstraint(Sketcher.Constraint("Coincident", 0, 2, 1, 1))
sketch8.addConstraint(Sketcher.Constraint("Coincident", 1, 2, 2, 1))
sketch8.addConstraint(Sketcher.Constraint("Coincident", 2, 2, 3, 1))
sketch8.addConstraint(Sketcher.Constraint("Coincident", 3, 2, 0, 1))
sketch8.addConstraint(Sketcher.Constraint("Vertical", 0))
sketch8.addConstraint(Sketcher.Constraint("Horizontal", 1))
sketch8.addConstraint(Sketcher.Constraint("Vertical", 2))
sketch8.addConstraint(Sketcher.Constraint("Horizontal", 3))
sketch8.addConstraint(Sketcher.Constraint("DistanceX", 1, 2, 1, 1, Q("6.76 mm")))
sketch8.addConstraint(Sketcher.Constraint("DistanceY", 0, 2, 0, 1, Q("6.79571 mm")))
sketch8.addConstraint(Sketcher.Constraint("DistanceX", -1, 1, 0, 2, Q("930.326348 mm")))
sketch8.addConstraint(Sketcher.Constraint("DistanceY", -1, 1, 0, 2, Q("994.157114 mm")))
pocket7 = body.newObject("PartDesign::Pocket", "Pocket006")
pocket7.Profile = sketch8
pocket7.Length = 4
pocket7.Reversed = True

doc.recompute()
